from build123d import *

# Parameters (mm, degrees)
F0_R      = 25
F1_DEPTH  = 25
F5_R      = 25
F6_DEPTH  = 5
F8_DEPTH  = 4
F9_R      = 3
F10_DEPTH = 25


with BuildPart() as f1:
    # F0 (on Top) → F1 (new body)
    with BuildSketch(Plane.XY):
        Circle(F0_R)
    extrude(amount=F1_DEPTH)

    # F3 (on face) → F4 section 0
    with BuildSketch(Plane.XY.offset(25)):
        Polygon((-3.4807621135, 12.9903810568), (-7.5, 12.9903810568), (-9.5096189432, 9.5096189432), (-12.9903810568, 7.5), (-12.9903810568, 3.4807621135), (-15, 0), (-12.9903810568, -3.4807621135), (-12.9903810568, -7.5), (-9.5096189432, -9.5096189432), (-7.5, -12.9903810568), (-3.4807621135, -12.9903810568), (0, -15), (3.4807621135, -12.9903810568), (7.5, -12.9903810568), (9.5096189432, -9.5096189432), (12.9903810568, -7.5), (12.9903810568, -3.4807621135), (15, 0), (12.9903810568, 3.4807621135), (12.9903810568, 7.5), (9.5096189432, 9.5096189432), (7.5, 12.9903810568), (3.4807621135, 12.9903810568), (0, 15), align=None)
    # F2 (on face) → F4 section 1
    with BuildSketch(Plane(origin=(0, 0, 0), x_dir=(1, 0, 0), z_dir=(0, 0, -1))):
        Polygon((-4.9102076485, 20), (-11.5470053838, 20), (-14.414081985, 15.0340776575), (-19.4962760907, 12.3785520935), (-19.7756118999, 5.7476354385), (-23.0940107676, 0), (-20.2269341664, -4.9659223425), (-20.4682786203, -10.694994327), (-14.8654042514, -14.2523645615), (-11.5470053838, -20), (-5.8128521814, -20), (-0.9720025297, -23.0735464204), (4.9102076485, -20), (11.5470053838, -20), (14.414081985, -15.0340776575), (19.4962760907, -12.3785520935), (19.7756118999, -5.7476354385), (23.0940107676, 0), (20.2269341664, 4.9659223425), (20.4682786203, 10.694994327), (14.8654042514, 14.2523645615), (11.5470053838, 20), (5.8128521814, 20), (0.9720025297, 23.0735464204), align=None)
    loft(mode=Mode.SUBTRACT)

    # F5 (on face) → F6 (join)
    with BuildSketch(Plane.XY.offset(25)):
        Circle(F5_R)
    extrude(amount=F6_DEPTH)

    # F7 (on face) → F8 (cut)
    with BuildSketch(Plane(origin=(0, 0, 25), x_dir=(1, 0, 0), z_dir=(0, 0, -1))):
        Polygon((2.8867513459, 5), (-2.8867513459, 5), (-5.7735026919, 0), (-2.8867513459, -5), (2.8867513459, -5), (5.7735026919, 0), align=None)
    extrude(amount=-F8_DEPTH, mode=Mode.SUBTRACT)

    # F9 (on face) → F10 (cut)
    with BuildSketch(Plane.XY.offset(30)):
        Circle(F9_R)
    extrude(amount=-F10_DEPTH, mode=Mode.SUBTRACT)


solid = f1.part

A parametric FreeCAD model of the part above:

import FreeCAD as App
import Part
import Sketcher

V = App.Vector
Q = App.Units.Quantity


def add_polygon(sketch, points):
    """Adds a closed chain of lines whose ends are joined by coincident constraints."""
    first, n = sketch.GeometryCount, len(points)
    for a, b in zip(points, points[1:] + points[:1]):
        sketch.addGeometry(Part.LineSegment(App.Vector(*a, 0), App.Vector(*b, 0)), False)
    for i in range(n):
        sketch.addConstraint(Sketcher.Constraint("Coincident", first + i, 2, first + (i + 1) % n, 1))

doc = App.newDocument("Part")
params = doc.addObject("Spreadsheet::Sheet", "Params")
for row, (alias, value) in enumerate([
    ("sketch1_diameter", "50 mm"),
    ("pad1_length", "25 mm"),
    ("sketch4_diameter", "50 mm"),
    ("pad2_length", "5 mm"),
    ("pocket1_length", "4 mm"),
    ("sketch6_diameter", "6 mm"),
    ("pocket2_length", "25 mm"),
], start=1):
    params.set(f"A{row}", alias)
    params.set(f"B{row}", "=" + value)
    params.setAlias(f"B{row}", alias)

body = doc.addObject("PartDesign::Body", "Body")

# Sketch on XY plane
sketch1 = body.newObject("Sketcher::SketchObject", "Sketch")
sketch1.AttachmentSupport = (doc.getObject("XY_Plane"), [""])
sketch1.MapMode = "FlatFace"
sketch1.addGeometry(Part.Circle(V(0, 0, 0), V(0, 0, 1), 25), False)
sketch1.addConstraint([
    Sketcher.Constraint("Coincident", 0, 3, -1, 1),
    Sketcher.Constraint("Diameter", 0, 50.0),
])
sketch1.setExpression("Constraints[1]", "Params.sketch1_diameter")
pad1 = body.newObject("PartDesign::Pad", "Pad")
pad1.Profile = sketch1
pad1.setExpression("Length", "Params.pad1_length")

# Sketch on XY plane
sketch2 = body.newObject("Sketcher::SketchObject", "Sketch001")
sketch2.AttachmentSupport = (doc.getObject("XY_Plane"), [""])
sketch2.MapMode = "FlatFace"
sketch2.AttachmentOffset = App.Placement(V(0, 0, 25), App.Rotation())
add_polygon(sketch2, [(-3.5, 13), (-7.5, 13), (-9.5, 9.5), (-13, 7.5), (-13, 3.5), (-15, 0), (-13, -3.5), (-13, -7.5), (-9.5, -9.5), (-7.5, -13), (-3.5, -13), (0, -15), (3.5, -13), (7.5, -13), (9.5, -9.5), (13, -7.5), (13, -3.5), (15, 0), (13, 3.5), (13, 7.5), (9.5, 9.5), (7.5, 13), (3.5, 13), (0, 15)])  # lines 0-23
sketch2.addConstraint([
    Sketcher.Constraint("Horizontal", 0),
    Sketcher.Constraint("Vertical", 3),
    Sketcher.Constraint("Vertical", 6),
    Sketcher.Constraint("Horizontal", 9),
    Sketcher.Constraint("Horizontal", 12),
    Sketcher.Constraint("Vertical", 15),
    Sketcher.Constraint("Vertical", 18),
    Sketcher.Constraint("Horizontal", 21),
    Sketcher.Constraint("Symmetric", 0, 2, 12, 2, -1, 1),
    Sketcher.Constraint("Symmetric", 1, 2, 13, 2, -1, 1),
    Sketcher.Constraint("Symmetric", 2, 2, 14, 2, -1, 1),
    Sketcher.Constraint("Symmetric", 4, 2, 16, 2, -1, 1),
    Sketcher.Constraint("Symmetric", 5, 2, 17, 2, -1, 1),
    Sketcher.Constraint("Symmetric", 7, 2, 19, 2, -1, 1),
    Sketcher.Constraint("Symmetric", 8, 2, 20, 2, -1, 1),
    Sketcher.Constraint("Symmetric", 10, 2, 22, 2, -1, 1),
    Sketcher.Constraint("Symmetric", 9, 2, 11, 2, -2),
    Sketcher.Constraint("Symmetric", 7, 2, 13, 2, -2),
    Sketcher.Constraint("Symmetric", 6, 2, 14, 2, -2),
    Sketcher.Constraint("PointOnObject", 4, 2, -1),
    Sketcher.Constraint("PointOnObject", 10, 2, -2),
    Sketcher.Constraint("Parallel", 1, 4),
    Sketcher.Constraint("Perpendicular", 2, 5),
    Sketcher.Constraint("Perpendicular", 4, 7),
    Sketcher.Constraint("Parallel", 5, 8),
    Sketcher.Constraint("Parallel", 7, 10),
    Sketcher.Constraint("Parallel", 13, 16),
    Sketcher.Constraint("Perpendicular", 16, 19),
    Sketcher.Constraint("Parallel", 19, 22),
    Sketcher.Constraint("Perpendicular", 20, 23),
    Sketcher.Constraint("Equal", 21, 3),
    Sketcher.Constraint("Equal", 1, 2),
    Sketcher.Constraint("Equal", 2, 4),
    Sketcher.Constraint("Equal", 8, 10),
    Sketcher.Constraint("Angle", 1, Q("-120 deg")),
    Sketcher.Constraint("DistanceX", 4, 2, -1, 1, 15.0),
    Sketcher.Constraint("DistanceY", 6, 2, 2, 2, 15.0),
])

# Sketch on XY plane
sketch3 = body.newObject("Sketcher::SketchObject", "Sketch002")
sketch3.AttachmentSupport = (doc.getObject("XY_Plane"), [""])
sketch3.MapMode = "FlatFace"
add_polygon(sketch3, [(-5, -20), (-12, -20), (-14, -15), (-19, -12), (-20, -6), (-23, 0), (-20, 5), (-20, 11), (-15, 14), (-12, 20), (-6, 20), (-1, 23), (5, 20), (12, 20), (14, 15), (19, 12), (20, 6), (23, 0), (20, -5), (20, -11), (15, -14), (12, -20), (6, -20), (1, -23)])  # lines 0-23
sketch3.addConstraint([
    Sketcher.Constraint("Horizontal", 0),
    Sketcher.Constraint("Horizontal", 9),
    Sketcher.Constraint("Horizontal", 12),
    Sketcher.Constraint("Horizontal", 21),
    Sketcher.Constraint("Symmetric", 0, 2, 12, 2, -1, 1),
    Sketcher.Constraint("Symmetric", 1, 2, 13, 2, -1, 1),
    Sketcher.Constraint("Symmetric", 2, 2, 14, 2, -1, 1),
    Sketcher.Constraint("Symmetric", 3, 2, 15, 2, -1, 1),
    Sketcher.Constraint("Symmetric", 4, 2, 16, 2, -1, 1),
    Sketcher.Constraint("Symmetric", 5, 2, 17, 2, -1, 1),
    Sketcher.Constraint("Symmetric", 6, 2, 18, 2, -1, 1),
    Sketcher.Constraint("Symmetric", 7, 2, 19, 2, -1, 1),
    Sketcher.Constraint("Symmetric", 8, 2, 20, 2, -1, 1),
    Sketcher.Constraint("Symmetric", 10, 2, 22, 2, -1, 1),
    Sketcher.Constraint("Symmetric", 8, 2, 12, 2, -2),
    Sketcher.Constraint("PointOnObject", 4, 2, -1),
    Sketcher.Constraint("Parallel", 1, 4),
    Sketcher.Constraint("Parallel", 3, 6),
    Sketcher.Constraint("Parallel", 5, 8),
    Sketcher.Constraint("Parallel", 7, 10),
    Sketcher.Constraint("Parallel", 2, 11),
    Sketcher.Constraint("Parallel", 19, 22),
    Sketcher.Constraint("Parallel", 14, 23),
    Sketcher.Constraint("Equal", 1, 2),
    Sketcher.Constraint("Equal", 3, 4),
    Sketcher.Constraint("Equal", 2, 5),
    Sketcher.Constraint("Equal", 5, 6),
    Sketcher.Constraint("Equal", 4, 7),
    Sketcher.Constraint("Equal", 7, 8),
    Sketcher.Constraint("Equal", 6, 10),
    Sketcher.Constraint("Equal", 8, 11),
    Sketcher.Constraint("Angle", 1, Q("120 deg")),
    Sketcher.Constraint("Angle", 5, Q("60 deg")),
    Sketcher.Constraint("DistanceY", 0, 2, -1, 1, 20.0),
    Sketcher.Constraint("DistanceX", 4, 2, 3, 2, 3.318399),
    Sketcher.Constraint("DistanceX", 7, 2, 10, 2, 13.893402),
    Sketcher.Constraint("DistanceX", 0, 2, 0, 1, 6.636798),
])

subtractiveloft = body.newObject("PartDesign::SubtractiveLoft", "SubtractiveLoft")
subtractiveloft.Profile = sketch2
subtractiveloft.Sections = [sketch3]

# Sketch on XY plane
sketch4 = body.newObject("Sketcher::SketchObject", "Sketch003")
sketch4.AttachmentSupport = (doc.getObject("XY_Plane"), [""])
sketch4.MapMode = "FlatFace"
sketch4.AttachmentOffset = App.Placement(V(0, 0, 25), App.Rotation())
sketch4.addGeometry(Part.Circle(V(0, 0, 0), V(0, 0, 1), 25), False)
sketch4.addConstraint([
    Sketcher.Constraint("Coincident", 0, 3, -1, 1),
    Sketcher.Constraint("Diameter", 0, 50.0),
])
sketch4.setExpression("Constraints[1]", "Params.sketch4_diameter")
pad2 = body.newObject("PartDesign::Pad", "Pad001")
pad2.Profile = sketch4
pad2.setExpression("Length", "Params.pad2_length")

# Sketch on XY plane
sketch5 = body.newObject("Sketcher::SketchObject", "Sketch004")
sketch5.AttachmentSupport = (doc.getObject("XY_Plane"), [""])
sketch5.MapMode = "FlatFace"
sketch5.AttachmentOffset = App.Placement(V(0, 0, 25), App.Rotation())
add_polygon(sketch5, [(3, -5), (-3, -5), (-6, 0), (-3, 5), (3, 5), (6, 0)])  # lines 0-5
sketch5.addConstraint([
    Sketcher.Constraint("Horizontal", 0),
    Sketcher.Constraint("Horizontal", 3),
    Sketcher.Constraint("Symmetric", 0, 2, 3, 2, -1, 1),
    Sketcher.Constraint("Symmetric", 1, 2, 4, 2, -1, 1),
    Sketcher.Constraint("PointOnObject", 1, 2, -1),
    Sketcher.Constraint("Parallel", 2, 5),
    Sketcher.Constraint("Vertical", 0, 2, 2, 2),
    Sketcher.Constraint("Angle", 1, Q("120 deg")),
    Sketcher.Constraint("DistanceY", 0, 2, -1, 1, 5.0),
    Sketcher.Constraint("DistanceX", 0, 2, 0, 1, 5.773503),
])
pocket1 = body.newObject("PartDesign::Pocket", "Pocket")
pocket1.Profile = sketch5
pocket1.setExpression("Length", "Params.pocket1_length")
pocket1.Reversed = True

# Sketch on XY plane
sketch6 = body.newObject("Sketcher::SketchObject", "Sketch005")
sketch6.AttachmentSupport = (doc.getObject("XY_Plane"), [""])
sketch6.MapMode = "FlatFace"
sketch6.AttachmentOffset = App.Placement(V(0, 0, 30), App.Rotation())
sketch6.addGeometry(Part.Circle(V(0, 0, 0), V(0, 0, 1), 3), False)
sketch6.addConstraint([
    Sketcher.Constraint("Coincident", 0, 3, -1, 1),
    Sketcher.Constraint("Diameter", 0, 6.0),
])
sketch6.setExpression("Constraints[1]", "Params.sketch6_diameter")
pocket2 = body.newObject("PartDesign::Pocket", "Pocket001")
pocket2.Profile = sketch6
pocket2.setExpression("Length", "Params.pocket2_length")

doc.recompute()
